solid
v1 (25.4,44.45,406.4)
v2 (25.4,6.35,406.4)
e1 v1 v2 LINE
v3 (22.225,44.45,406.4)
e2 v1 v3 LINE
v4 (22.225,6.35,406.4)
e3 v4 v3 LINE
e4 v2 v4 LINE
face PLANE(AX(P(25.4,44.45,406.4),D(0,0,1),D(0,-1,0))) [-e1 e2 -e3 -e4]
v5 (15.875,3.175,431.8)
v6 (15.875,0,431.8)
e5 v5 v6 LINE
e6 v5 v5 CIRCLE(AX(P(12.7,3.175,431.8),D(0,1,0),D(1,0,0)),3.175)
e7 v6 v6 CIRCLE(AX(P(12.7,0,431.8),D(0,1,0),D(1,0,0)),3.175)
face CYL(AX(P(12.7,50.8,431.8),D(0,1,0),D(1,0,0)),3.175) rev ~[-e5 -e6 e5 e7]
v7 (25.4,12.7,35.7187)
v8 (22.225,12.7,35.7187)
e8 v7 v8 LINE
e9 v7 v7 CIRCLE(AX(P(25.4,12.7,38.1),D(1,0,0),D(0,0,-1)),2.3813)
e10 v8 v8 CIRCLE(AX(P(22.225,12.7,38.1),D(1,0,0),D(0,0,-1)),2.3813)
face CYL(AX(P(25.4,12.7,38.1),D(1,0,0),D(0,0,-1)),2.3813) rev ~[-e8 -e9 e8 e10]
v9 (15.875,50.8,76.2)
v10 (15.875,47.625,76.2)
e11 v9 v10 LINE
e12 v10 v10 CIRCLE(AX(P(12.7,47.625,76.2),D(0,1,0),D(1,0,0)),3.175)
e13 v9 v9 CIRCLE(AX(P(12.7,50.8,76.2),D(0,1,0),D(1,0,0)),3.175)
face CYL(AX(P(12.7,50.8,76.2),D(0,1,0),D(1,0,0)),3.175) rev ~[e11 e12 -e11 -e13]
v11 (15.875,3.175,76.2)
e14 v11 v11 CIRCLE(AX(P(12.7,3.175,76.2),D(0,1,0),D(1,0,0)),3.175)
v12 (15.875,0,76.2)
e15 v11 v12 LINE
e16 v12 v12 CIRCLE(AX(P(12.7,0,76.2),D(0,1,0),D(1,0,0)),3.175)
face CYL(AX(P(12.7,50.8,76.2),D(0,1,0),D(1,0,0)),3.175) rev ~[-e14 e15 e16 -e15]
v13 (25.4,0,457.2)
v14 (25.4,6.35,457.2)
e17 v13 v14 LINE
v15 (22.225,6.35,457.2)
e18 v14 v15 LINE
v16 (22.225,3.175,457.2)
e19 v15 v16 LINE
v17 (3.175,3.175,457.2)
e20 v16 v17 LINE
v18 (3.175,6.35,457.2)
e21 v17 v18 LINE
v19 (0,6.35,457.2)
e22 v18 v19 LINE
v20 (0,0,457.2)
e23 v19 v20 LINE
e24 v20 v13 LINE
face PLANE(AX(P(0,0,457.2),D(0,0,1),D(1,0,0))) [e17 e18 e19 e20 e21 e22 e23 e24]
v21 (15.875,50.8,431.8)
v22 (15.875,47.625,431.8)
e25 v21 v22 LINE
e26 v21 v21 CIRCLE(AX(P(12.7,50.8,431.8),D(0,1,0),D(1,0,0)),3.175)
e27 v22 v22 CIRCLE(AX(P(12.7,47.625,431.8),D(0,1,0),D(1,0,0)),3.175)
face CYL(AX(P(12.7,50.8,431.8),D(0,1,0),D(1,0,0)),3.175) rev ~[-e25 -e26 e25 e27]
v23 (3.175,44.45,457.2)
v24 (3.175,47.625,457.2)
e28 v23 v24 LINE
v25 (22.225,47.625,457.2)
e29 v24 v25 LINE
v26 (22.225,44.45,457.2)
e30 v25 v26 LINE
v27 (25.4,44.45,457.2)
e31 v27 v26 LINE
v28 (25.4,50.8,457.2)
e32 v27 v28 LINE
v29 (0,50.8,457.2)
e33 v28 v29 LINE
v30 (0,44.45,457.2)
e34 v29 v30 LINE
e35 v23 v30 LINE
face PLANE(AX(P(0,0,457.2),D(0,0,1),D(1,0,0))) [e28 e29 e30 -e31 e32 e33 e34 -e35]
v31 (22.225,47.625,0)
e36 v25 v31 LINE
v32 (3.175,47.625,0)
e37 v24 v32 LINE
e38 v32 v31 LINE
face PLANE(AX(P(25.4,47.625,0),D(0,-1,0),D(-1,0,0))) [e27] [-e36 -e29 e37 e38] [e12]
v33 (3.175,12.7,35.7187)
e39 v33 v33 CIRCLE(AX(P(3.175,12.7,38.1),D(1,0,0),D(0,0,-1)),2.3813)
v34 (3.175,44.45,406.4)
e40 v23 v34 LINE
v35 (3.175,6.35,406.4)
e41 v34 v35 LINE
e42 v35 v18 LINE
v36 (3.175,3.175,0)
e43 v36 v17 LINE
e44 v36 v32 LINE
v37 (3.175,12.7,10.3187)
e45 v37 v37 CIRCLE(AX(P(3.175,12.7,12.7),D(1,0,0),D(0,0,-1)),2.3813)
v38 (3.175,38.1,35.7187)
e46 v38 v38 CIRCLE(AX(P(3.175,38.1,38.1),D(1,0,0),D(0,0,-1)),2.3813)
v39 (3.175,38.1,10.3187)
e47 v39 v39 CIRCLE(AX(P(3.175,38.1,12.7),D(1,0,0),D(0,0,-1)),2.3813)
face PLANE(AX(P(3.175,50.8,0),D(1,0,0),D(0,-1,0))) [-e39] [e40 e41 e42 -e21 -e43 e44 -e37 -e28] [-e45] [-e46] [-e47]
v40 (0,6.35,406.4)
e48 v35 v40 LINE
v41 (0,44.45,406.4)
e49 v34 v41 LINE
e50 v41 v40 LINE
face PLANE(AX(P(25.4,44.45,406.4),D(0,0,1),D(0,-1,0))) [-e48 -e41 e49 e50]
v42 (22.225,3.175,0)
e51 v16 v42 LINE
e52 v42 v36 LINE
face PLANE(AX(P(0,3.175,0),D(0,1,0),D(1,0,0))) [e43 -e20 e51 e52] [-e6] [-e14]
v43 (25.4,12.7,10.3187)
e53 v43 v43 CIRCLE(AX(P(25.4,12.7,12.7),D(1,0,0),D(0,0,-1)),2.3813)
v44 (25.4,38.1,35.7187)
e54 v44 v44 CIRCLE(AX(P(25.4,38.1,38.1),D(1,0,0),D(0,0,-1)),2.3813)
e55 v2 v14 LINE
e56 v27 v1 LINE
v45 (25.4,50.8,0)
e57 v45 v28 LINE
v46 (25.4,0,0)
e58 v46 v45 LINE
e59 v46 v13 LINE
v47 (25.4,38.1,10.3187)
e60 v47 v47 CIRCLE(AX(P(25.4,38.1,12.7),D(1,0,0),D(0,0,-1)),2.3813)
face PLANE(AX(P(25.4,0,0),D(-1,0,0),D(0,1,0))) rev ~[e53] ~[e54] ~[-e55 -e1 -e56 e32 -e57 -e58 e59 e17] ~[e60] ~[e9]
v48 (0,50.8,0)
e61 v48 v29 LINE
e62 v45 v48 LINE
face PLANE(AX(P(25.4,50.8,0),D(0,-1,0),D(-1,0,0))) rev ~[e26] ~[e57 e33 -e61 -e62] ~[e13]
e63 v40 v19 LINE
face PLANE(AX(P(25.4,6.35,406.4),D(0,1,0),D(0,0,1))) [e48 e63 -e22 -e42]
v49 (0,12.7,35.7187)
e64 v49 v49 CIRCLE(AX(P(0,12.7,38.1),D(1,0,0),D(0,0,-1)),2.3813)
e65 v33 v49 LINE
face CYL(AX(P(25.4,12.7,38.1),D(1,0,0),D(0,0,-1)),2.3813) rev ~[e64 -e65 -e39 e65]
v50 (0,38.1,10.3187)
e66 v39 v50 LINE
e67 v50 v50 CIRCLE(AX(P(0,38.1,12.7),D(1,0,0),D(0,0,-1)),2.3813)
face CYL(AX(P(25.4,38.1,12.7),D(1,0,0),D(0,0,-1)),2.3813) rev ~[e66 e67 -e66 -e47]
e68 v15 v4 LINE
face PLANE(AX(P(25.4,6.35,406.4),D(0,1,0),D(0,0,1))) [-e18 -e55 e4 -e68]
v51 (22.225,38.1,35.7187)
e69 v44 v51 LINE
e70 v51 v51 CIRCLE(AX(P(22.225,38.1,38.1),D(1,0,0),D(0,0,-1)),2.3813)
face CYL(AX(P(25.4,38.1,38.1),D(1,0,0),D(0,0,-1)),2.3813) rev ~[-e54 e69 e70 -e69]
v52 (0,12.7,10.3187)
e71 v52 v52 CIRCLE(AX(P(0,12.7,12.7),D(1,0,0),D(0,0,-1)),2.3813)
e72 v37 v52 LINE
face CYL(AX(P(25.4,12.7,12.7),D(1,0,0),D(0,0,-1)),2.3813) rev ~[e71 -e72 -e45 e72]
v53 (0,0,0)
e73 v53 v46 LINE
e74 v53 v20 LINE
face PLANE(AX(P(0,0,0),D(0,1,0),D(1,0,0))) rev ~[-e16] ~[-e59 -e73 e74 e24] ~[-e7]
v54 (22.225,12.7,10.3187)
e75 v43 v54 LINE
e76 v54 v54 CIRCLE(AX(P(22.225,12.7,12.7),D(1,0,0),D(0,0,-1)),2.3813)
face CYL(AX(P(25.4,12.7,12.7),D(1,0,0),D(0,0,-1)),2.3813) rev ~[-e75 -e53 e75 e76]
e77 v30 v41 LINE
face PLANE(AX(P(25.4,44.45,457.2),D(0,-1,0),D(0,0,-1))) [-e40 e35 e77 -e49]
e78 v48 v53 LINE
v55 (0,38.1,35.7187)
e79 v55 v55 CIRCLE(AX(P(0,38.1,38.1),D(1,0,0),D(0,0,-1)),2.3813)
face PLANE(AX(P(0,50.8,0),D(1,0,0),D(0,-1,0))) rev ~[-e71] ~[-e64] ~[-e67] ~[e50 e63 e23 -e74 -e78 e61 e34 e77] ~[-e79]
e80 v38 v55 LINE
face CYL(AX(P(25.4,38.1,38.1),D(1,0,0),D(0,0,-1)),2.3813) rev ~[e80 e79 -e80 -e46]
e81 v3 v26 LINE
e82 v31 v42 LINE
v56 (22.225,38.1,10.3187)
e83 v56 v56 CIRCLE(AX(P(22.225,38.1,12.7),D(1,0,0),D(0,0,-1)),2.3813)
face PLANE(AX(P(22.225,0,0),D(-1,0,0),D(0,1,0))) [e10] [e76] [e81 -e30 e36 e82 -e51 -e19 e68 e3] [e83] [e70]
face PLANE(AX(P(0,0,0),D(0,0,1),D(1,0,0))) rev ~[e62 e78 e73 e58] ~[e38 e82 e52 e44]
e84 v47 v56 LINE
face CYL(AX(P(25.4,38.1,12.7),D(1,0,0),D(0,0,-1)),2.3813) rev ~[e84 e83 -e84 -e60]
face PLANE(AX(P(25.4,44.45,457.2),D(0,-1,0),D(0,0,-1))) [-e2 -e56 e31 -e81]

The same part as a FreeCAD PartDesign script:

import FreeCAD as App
import Part
import Sketcher
Q = App.Units.Quantity


def faces_at(feature, points):
    """Names of the faces that lie closest to the given points."""
    faces = feature.Shape.Faces
    near = lambda p: min(range(len(faces)), key=lambda i: faces[i].distToShape(Part.Vertex(*p))[0])
    return sorted({f"Face{near(p) + 1}" for p in points})

doc = App.newDocument("Part")
body = doc.addObject("PartDesign::Body", "Body")

# Sketch on XY plane
sketch1 = body.newObject("Sketcher::SketchObject", "Sketch")
sketch1.AttachmentSupport = (doc.getObject("XY_Plane"), [""])
sketch1.MapMode = "FlatFace"
sketch1.addGeometry(Part.LineSegment(App.Vector(0, 51, 0), App.Vector(0, 0, 0)), False)
sketch1.addGeometry(Part.LineSegment(App.Vector(0, 0, 0), App.Vector(25, 0, 0)), False)
sketch1.addGeometry(Part.LineSegment(App.Vector(25, 0, 0), App.Vector(25, 51, 0)), False)
sketch1.addGeometry(Part.LineSegment(App.Vector(25, 51, 0), App.Vector(0, 51, 0)), False)
sketch1.addConstraint(Sketcher.Constraint("Coincident", 0, 2, 1, 1))
sketch1.addConstraint(Sketcher.Constraint("Coincident", 1, 2, 2, 1))
sketch1.addConstraint(Sketcher.Constraint("Coincident", 2, 2, 3, 1))
sketch1.addConstraint(Sketcher.Constraint("Coincident", 3, 2, 0, 1))
sketch1.addConstraint(Sketcher.Constraint("Vertical", 0))
sketch1.addConstraint(Sketcher.Constraint("Horizontal", 1))
sketch1.addConstraint(Sketcher.Constraint("Vertical", 2))
sketch1.addConstraint(Sketcher.Constraint("Horizontal", 3))
sketch1.addConstraint(Sketcher.Constraint("Coincident", 0, 2, -1, 1))
sketch1.addConstraint(Sketcher.Constraint("DistanceX", 1, 1, 1, 2, Q("1 in")))
sketch1.addConstraint(Sketcher.Constraint("DistanceY", 0, 2, 0, 1, Q("2 in")))
pad1 = body.newObject("PartDesign::Pad", "Pad")
pad1.Profile = sketch1
pad1.Length = Q("18 in")
doc.recompute()

thickness = body.newObject("PartDesign::Thickness", "Thickness")
thickness.Base = (pad1, faces_at(pad1, [(8.467, 33.867, 0), (8.467, 33.867, 457.2)]))
thickness.Value = Q("0.125 in")
thickness.Reversed = True
thickness.Join = "Intersection"

# Sketch on YZ plane
sketch2 = body.newObject("Sketcher::SketchObject", "Sketch001")
sketch2.AttachmentSupport = (doc.getObject("YZ_Plane"), [""])
sketch2.MapMode = "FlatFace"
sketch2.AttachmentOffset = App.Placement(App.Vector(0, 0, 1 * 25.4), App.Rotation())
sketch2.addGeometry(Part.LineSegment(App.Vector(44, 406, 0), App.Vector(44, 457, 0)), False)
sketch2.addGeometry(Part.LineSegment(App.Vector(44, 457, 0), App.Vector(6, 457, 0)), False)
sketch2.addGeometry(Part.LineSegment(App.Vector(6, 457, 0), App.Vector(6, 406, 0)), False)
sketch2.addGeometry(Part.LineSegment(App.Vector(6, 406, 0), App.Vector(44, 406, 0)), False)
sketch2.addConstraint(Sketcher.Constraint("Coincident", 0, 2, 1, 1))
sketch2.addConstraint(Sketcher.Constraint("Coincident", 1, 2, 2, 1))
sketch2.addConstraint(Sketcher.Constraint("Coincident", 2, 2, 3, 1))
sketch2.addConstraint(Sketcher.Constraint("Coincident", 3, 2, 0, 1))
sketch2.addConstraint(Sketcher.Constraint("Vertical", 0))
sketch2.addConstraint(Sketcher.Constraint("Horizontal", 1))
sketch2.addConstraint(Sketcher.Constraint("Vertical", 2))
sketch2.addConstraint(Sketcher.Constraint("Horizontal", 3))
sketch2.addConstraint(Sketcher.Constraint("DistanceY", 0, 1, 0, 2, Q("2 in")))
sketch2.addConstraint(Sketcher.Constraint("DistanceX", 1, 2, 1, 1, Q("1.5 in")))
sketch2.addConstraint(Sketcher.Constraint("DistanceY", -1, 1, 2, 2, Q("16 in")))
sketch2.addConstraint(Sketcher.Constraint("DistanceX", -1, 1, 1, 2, Q("0.25 in")))
pocket1 = body.newObject("PartDesign::Pocket", "Pocket")
pocket1.Profile = sketch2
pocket1.Type = "ThroughAll"

# Sketch on XZ plane
sketch3 = body.newObject("Sketcher::SketchObject", "Sketch002")
sketch3.AttachmentSupport = (doc.getObject("XZ_Plane"), [""])
sketch3.MapMode = "FlatFace"
sketch3.AttachmentOffset = App.Placement(App.Vector(0, 0, -2 * 25.4), App.Rotation())
sketch3.addGeometry(Part.Circle(App.Vector(12.7, 76.2, 0), App.Vector(0, 0, 1), 3.2), False)
sketch3.addGeometry(Part.Circle(App.Vector(12.7, 431.8, 0), App.Vector(0, 0, 1), 3.2), False)
sketch3.addConstraint(Sketcher.Constraint("Equal", 0, 1))
sketch3.addConstraint(Sketcher.Constraint("Vertical", 0, 3, 1, 3))
sketch3.addConstraint(Sketcher.Constraint("Diameter", 0, Q("0.25 in")))
sketch3.addConstraint(Sketcher.Constraint("DistanceY", -1, 1, 0, 3, Q("3 in")))
sketch3.addConstraint(Sketcher.Constraint("DistanceX", -1, 1, 0, 3, Q("0.5 in")))
sketch3.addConstraint(Sketcher.Constraint("DistanceY", -1, 1, 1, 3, Q("17 in")))
pocket2 = body.newObject("PartDesign::Pocket", "Pocket001")
pocket2.Profile = sketch3
pocket2.Type = "ThroughAll"
pocket2.Reversed = True

# Sketch on YZ plane
sketch4 = body.newObject("Sketcher::SketchObject", "Sketch003")
sketch4.AttachmentSupport = (doc.getObject("YZ_Plane"), [""])
sketch4.MapMode = "FlatFace"
sketch4.AttachmentOffset = App.Placement(App.Vector(0, 0, 1 * 25.4), App.Rotation())
sketch4.addGeometry(Part.Circle(App.Vector(38.1, 38.1, 0), App.Vector(0, 0, 1), 2.4), False)
sketch4.addGeometry(Part.Circle(App.Vector(38.1, 12.7, 0), App.Vector(0, 0, 1), 2.4), False)
sketch4.addGeometry(Part.Circle(App.Vector(12.7, 38.1, 0), App.Vector(0, 0, 1), 2.4), False)
sketch4.addGeometry(Part.Circle(App.Vector(12.7, 12.7, 0), App.Vector(0, 0, 1), 2.4), False)
sketch4.addConstraint(Sketcher.Constraint("Equal", 0, 1))
sketch4.addConstraint(Sketcher.Constraint("Equal", 1, 2))
sketch4.addConstraint(Sketcher.Constraint("Equal", 2, 3))
sketch4.addConstraint(Sketcher.Constraint("Horizontal", 0, 3, 2, 3))
sketch4.addConstraint(Sketcher.Constraint("Horizontal", 1, 3, 3, 3))
sketch4.addConstraint(Sketcher.Constraint("Vertical", 0, 3, 1, 3))
sketch4.addConstraint(Sketcher.Constraint("Vertical", 2, 3, 3, 3))
sketch4.addConstraint(Sketcher.Constraint("Diameter", 0, Q("0.1875 in")))
sketch4.addConstraint(Sketcher.Constraint("DistanceY", 1, 3, 0, 3, Q("1 in")))
sketch4.addConstraint(Sketcher.Constraint("DistanceX", 2, 3, 0, 3, Q("1 in")))
sketch4.addConstraint(Sketcher.Constraint("DistanceY", -1, 1, 1, 3, Q("0.5 in")))
sketch4.addConstraint(Sketcher.Constraint("DistanceX", -1, 1, 2, 3, Q("0.5 in")))
pocket3 = body.newObject("PartDesign::Pocket", "Pocket002")
pocket3.Profile = sketch4
pocket3.Type = "ThroughAll"

doc.recompute()
